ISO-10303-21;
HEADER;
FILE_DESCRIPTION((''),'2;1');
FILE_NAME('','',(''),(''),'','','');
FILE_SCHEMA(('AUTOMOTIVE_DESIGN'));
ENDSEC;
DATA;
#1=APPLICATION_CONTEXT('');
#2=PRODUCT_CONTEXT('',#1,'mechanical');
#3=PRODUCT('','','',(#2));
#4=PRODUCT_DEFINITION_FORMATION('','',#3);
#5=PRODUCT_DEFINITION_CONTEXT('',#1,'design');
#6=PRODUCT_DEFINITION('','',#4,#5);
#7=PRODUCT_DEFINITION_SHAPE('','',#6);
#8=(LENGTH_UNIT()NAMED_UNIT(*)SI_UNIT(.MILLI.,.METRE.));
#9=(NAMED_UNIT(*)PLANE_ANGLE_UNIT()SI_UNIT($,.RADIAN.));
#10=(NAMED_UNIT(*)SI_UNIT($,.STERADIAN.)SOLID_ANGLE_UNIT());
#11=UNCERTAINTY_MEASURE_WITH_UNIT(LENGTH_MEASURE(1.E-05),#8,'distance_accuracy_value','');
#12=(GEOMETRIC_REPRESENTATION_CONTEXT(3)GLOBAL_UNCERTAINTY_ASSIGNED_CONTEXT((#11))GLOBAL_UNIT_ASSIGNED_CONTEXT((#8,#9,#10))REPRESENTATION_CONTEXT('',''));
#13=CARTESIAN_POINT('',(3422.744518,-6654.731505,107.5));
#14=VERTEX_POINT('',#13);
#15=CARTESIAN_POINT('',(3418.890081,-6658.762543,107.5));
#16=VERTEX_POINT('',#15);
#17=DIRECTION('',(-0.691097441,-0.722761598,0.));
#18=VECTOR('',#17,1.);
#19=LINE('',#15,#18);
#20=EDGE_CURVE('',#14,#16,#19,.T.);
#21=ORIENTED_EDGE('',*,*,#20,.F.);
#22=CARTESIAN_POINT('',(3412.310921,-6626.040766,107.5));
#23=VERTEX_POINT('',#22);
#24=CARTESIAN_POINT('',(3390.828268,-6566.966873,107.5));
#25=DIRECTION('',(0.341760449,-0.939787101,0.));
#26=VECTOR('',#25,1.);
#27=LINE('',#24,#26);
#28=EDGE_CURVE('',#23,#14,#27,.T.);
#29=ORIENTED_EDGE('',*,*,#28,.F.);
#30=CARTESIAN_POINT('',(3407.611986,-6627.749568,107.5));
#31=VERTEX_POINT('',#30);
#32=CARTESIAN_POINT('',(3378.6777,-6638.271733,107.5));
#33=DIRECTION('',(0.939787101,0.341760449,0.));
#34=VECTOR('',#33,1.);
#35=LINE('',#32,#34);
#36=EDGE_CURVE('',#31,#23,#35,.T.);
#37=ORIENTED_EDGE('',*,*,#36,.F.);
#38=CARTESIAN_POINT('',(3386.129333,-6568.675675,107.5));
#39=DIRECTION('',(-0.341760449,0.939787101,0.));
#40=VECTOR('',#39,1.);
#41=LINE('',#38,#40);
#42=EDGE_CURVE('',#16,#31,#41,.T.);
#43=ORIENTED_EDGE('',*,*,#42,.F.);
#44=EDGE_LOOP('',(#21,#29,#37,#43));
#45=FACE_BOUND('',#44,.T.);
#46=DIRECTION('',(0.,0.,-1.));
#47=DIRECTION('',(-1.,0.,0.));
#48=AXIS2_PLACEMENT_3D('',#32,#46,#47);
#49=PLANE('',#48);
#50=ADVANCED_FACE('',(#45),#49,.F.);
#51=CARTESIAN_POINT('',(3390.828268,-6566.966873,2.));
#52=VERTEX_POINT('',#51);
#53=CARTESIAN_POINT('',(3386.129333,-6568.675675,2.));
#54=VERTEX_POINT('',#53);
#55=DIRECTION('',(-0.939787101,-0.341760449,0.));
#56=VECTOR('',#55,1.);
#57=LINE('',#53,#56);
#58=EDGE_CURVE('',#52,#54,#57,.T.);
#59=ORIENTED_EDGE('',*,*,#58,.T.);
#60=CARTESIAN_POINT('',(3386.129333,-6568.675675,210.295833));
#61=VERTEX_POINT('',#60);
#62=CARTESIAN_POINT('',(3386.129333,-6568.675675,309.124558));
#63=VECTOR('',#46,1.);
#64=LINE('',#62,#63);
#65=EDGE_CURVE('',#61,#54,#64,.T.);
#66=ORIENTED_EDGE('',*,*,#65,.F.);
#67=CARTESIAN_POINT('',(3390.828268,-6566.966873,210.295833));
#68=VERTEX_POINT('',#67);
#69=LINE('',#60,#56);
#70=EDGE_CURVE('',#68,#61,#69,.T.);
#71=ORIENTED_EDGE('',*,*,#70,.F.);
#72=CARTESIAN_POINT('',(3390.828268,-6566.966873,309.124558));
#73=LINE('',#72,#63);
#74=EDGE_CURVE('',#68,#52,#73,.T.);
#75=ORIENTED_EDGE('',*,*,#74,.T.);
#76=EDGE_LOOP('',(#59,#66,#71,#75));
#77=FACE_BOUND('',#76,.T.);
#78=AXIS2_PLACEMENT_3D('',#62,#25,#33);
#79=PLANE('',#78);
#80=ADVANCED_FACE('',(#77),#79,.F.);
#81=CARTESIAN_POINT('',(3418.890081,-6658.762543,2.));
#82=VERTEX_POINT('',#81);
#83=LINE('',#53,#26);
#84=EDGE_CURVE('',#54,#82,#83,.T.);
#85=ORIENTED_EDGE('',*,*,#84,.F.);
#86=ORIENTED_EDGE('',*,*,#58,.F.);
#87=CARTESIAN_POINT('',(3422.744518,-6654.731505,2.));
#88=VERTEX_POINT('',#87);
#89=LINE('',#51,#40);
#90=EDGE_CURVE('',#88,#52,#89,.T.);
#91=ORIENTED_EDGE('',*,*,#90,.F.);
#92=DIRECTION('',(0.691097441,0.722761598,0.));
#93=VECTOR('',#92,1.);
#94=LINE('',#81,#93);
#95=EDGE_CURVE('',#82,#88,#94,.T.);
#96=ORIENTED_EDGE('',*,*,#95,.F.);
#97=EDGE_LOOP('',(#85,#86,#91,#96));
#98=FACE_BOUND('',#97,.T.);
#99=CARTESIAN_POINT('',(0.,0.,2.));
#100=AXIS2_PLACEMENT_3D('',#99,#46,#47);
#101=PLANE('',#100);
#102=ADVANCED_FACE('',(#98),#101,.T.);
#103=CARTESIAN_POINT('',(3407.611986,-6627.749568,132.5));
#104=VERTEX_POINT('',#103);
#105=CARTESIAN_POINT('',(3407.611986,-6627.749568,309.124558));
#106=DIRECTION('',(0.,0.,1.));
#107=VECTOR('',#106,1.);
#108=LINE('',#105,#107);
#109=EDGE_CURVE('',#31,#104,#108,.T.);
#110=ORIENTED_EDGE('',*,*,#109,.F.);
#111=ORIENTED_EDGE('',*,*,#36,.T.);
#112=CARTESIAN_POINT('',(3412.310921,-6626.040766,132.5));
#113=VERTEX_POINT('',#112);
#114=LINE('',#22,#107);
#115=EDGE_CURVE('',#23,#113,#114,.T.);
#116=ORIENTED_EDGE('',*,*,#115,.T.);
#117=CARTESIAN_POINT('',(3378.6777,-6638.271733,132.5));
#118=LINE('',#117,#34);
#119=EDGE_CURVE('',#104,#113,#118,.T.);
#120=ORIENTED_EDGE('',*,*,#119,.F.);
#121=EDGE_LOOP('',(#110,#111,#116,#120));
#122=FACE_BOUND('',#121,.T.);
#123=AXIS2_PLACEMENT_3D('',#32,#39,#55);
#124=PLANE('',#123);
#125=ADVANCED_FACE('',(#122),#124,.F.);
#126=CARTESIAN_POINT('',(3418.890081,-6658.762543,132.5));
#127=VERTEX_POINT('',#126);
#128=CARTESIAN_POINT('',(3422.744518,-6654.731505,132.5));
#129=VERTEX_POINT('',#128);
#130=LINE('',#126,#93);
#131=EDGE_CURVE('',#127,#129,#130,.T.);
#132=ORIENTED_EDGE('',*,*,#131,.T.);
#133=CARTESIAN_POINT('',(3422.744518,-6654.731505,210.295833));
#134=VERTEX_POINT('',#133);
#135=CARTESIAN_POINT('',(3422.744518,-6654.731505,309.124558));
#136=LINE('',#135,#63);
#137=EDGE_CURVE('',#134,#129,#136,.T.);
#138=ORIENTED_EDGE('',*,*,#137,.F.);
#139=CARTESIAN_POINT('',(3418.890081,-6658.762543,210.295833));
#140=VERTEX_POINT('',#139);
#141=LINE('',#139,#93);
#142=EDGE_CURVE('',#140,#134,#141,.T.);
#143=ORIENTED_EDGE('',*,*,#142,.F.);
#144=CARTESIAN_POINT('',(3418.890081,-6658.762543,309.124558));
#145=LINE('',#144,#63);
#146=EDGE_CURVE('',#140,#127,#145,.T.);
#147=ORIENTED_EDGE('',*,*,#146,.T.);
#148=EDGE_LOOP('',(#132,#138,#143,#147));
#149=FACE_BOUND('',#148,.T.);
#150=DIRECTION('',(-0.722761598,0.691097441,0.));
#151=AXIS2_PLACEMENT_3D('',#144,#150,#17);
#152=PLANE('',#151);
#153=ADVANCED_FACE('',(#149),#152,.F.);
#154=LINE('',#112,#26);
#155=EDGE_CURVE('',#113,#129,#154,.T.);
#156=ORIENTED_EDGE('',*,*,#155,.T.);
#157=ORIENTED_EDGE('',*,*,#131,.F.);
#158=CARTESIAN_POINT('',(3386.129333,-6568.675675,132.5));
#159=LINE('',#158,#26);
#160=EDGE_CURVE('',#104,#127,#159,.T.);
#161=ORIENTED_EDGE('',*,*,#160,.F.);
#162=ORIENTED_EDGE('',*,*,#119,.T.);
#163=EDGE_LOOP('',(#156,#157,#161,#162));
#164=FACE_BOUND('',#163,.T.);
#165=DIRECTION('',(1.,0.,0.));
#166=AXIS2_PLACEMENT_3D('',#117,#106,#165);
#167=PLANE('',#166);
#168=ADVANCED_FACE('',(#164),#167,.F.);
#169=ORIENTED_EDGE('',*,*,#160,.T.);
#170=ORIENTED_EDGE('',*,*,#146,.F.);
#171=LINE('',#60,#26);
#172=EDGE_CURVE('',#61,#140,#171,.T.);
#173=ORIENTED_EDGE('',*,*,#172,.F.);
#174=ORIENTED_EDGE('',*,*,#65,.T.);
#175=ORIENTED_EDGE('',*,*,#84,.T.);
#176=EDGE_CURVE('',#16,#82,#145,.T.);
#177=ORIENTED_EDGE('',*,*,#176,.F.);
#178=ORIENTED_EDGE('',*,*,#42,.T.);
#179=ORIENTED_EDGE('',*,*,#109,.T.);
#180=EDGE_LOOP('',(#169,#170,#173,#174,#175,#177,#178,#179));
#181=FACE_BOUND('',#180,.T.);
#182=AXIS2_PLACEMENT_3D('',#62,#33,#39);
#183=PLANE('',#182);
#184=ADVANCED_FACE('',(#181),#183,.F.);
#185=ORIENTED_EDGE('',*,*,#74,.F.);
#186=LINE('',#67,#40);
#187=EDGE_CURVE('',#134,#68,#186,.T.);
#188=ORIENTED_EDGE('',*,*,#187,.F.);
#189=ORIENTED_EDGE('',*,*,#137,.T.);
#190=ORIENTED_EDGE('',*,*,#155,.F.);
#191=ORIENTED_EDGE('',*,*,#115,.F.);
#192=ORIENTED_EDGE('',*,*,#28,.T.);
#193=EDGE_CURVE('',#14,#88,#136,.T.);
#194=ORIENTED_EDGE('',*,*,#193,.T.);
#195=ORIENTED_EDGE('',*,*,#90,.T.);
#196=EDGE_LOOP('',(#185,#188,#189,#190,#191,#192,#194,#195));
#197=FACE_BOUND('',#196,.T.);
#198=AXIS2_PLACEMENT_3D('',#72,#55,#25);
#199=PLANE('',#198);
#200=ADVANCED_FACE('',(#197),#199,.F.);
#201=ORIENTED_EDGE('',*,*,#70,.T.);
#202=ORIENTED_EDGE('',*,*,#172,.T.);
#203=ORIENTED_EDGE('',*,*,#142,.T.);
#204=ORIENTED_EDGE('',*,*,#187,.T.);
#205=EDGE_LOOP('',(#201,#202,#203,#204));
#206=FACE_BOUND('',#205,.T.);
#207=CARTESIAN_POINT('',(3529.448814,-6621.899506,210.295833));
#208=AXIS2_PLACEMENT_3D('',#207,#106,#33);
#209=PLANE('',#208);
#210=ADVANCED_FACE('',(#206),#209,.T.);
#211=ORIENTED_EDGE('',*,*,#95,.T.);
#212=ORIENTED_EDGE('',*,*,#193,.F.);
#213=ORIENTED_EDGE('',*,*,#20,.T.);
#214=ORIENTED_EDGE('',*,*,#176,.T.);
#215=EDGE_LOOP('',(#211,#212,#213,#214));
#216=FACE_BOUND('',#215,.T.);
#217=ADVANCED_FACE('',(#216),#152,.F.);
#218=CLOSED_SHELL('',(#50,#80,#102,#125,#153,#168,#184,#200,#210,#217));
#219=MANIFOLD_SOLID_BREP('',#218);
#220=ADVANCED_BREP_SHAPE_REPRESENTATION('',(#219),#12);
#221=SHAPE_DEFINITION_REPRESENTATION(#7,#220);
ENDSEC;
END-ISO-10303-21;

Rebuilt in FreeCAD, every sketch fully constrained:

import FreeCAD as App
import Part
import Sketcher
from FreeCAD import Vector
Q = App.Units.Quantity


def add_polygon(sketch, points):
    """Adds a closed chain of lines whose ends are joined by coincident constraints."""
    first, n = sketch.GeometryCount, len(points)
    for a, b in zip(points, points[1:] + points[:1]):
        sketch.addGeometry(Part.LineSegment(App.Vector(*a, 0), App.Vector(*b, 0)), False)
    for i in range(n):
        sketch.addConstraint(Sketcher.Constraint("Coincident", first + i, 2, first + (i + 1) % n, 1))

doc = App.newDocument("Part")
body = doc.addObject("PartDesign::Body", "Body")

sketch1 = body.newObject("Sketcher::SketchObject", "Sketch")
sketch1.AttachmentSupport = (doc.getObject("XY_Plane"), [""])
sketch1.MapMode = "FlatFace"
sketch1.AttachmentOffset = App.Placement(Vector(0, 0, 2), App.Rotation())
add_polygon(sketch1, [(3386.129333, -6568.675675), (3418.890081, -6658.762543), (3422.744518, -6654.731505), (3390.828268, -6566.966873)])
sketch1.addConstraint([
    Sketcher.Constraint("Parallel", 0, 2),
    Sketcher.Constraint("Perpendicular", 2, 3),
    Sketcher.Constraint("Distance", 3, Q("5 mm")),
    Sketcher.Constraint("Distance", 1, Q("5.577271 mm")),
    Sketcher.Constraint("Distance", 2, Q("93.387781 mm")),
    Sketcher.Constraint("DistanceX", -1, 1, 0, 2, Q("3418.890081 mm")),
    Sketcher.Constraint("DistanceX", -1, 1, 1, 2, Q("3422.744518 mm")),
    Sketcher.Constraint("DistanceY", 0, 2, -1, 1, Q("6658.762543 mm")),
])
pad1 = body.newObject("PartDesign::Pad", "Pad")
pad1.Profile = sketch1
pad1.Length = 208.295833

sketch2 = body.newObject("Sketcher::SketchObject", "Sketch001")
sketch2.Placement = App.Placement(Vector(885.586874, 322.05014, 0), App.Rotation(Vector(0, 0, -1), Vector(-0.341760449, 0.939787101, 0), Vector(0.939787101, 0.341760449, 0), "ZXY"))
add_polygon(sketch2, [(-132.5, -7393.260554), (-132.5, -7426.260554), (-107.5, -7426.260554), (-107.5, -7393.260554)])
sketch2.addConstraint([
    Sketcher.Constraint("Vertical", 0),
    Sketcher.Constraint("Horizontal", 1),
    Sketcher.Constraint("Vertical", 2),
    Sketcher.Constraint("Horizontal", 3),
    Sketcher.Constraint("DistanceX", 1, 1, 1, 2, Q("25 mm")),
    Sketcher.Constraint("DistanceY", 0, 2, 0, 1, Q("33 mm")),
    Sketcher.Constraint("DistanceX", 0, 2, -1, 1, Q("132.5 mm")),
    Sketcher.Constraint("DistanceY", 0, 2, -1, 1, Q("7426.260554 mm")),
])
pocket1 = body.newObject("PartDesign::Pocket", "Pocket")
pocket1.Profile = sketch2
pocket1.Type = "ThroughAll"

doc.recompute()
